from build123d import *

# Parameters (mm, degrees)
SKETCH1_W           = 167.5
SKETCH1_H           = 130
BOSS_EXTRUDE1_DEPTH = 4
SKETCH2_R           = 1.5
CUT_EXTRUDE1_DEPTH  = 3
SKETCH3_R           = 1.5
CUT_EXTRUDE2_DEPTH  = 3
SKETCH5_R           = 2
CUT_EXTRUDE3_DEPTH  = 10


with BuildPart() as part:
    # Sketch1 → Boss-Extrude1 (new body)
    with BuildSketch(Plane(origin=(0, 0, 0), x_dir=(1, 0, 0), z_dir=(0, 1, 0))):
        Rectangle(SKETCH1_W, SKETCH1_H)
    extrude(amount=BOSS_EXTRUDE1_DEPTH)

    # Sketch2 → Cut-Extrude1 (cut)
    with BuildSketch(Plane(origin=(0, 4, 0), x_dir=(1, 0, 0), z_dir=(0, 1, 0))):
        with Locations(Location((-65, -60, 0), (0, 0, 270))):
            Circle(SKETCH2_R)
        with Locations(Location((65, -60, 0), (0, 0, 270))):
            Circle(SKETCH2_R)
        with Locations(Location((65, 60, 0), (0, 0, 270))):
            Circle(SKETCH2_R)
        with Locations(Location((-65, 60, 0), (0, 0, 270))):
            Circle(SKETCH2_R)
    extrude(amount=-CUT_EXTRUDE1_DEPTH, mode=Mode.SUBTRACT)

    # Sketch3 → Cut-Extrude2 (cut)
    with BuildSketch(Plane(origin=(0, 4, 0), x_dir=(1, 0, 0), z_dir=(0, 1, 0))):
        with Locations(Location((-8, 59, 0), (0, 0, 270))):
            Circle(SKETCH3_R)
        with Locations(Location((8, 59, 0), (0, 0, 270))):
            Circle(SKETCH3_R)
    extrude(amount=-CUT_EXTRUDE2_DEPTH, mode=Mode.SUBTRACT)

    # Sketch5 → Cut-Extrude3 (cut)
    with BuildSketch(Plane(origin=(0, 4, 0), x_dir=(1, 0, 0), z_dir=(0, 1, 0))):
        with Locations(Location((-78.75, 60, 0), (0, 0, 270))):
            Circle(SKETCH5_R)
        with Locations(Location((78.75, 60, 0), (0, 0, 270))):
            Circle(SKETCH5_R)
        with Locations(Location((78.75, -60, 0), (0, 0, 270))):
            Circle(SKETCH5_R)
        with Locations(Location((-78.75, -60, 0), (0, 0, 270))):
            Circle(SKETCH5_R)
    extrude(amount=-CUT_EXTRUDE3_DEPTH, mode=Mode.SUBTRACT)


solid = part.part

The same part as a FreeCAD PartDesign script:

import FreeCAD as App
import Part
import Sketcher
from FreeCAD import Vector


def add_polygon(sketch, points):
    """Adds a closed chain of lines whose ends are joined by coincident constraints."""
    first, n = sketch.GeometryCount, len(points)
    for a, b in zip(points, points[1:] + points[:1]):
        sketch.addGeometry(Part.LineSegment(App.Vector(*a, 0), App.Vector(*b, 0)), False)
    for i in range(n):
        sketch.addConstraint(Sketcher.Constraint("Coincident", first + i, 2, first + (i + 1) % n, 1))

doc = App.newDocument("Part")
body = doc.addObject("PartDesign::Body", "Body")

sketch1 = body.newObject("Sketcher::SketchObject", "Sketch")
sketch1.AttachmentSupport = (doc.getObject("XZ_Plane"), [""])
sketch1.MapMode = "FlatFace"
add_polygon(sketch1, [(-83.75, -65), (-83.75, 65), (83.75, 65), (83.75, -65)])
sketch1.addConstraint([
    Sketcher.Constraint("Vertical", 0),
    Sketcher.Constraint("Horizontal", 1),
    Sketcher.Constraint("Vertical", 2),
    Sketcher.Constraint("Horizontal", 3),
    Sketcher.Constraint("Symmetric", 0, 2, 2, 2, -1, 1),
    Sketcher.Constraint("DistanceY", 0, 1, 0, 2, 130.0),
    Sketcher.Constraint("DistanceX", 1, 1, 1, 2, 167.5),
])
pad1 = body.newObject("PartDesign::Pad", "Pad")
pad1.Profile = sketch1
pad1.Length = 4
pad1.Reversed = True

sketch2 = body.newObject("Sketcher::SketchObject", "Sketch001")
sketch2.AttachmentSupport = (doc.getObject("XZ_Plane"), [""])
sketch2.MapMode = "FlatFace"
sketch2.AttachmentOffset = App.Placement(Vector(0, 0, -4), App.Rotation())
sketch2.addGeometry([
    Part.Circle(Vector(-65, 60, 0), Vector(0, 0, 1), 1.5),
    Part.Circle(Vector(65, 60, 0), Vector(0, 0, 1), 1.5),
    Part.Circle(Vector(65, -60, 0), Vector(0, 0, 1), 1.5),
    Part.Circle(Vector(-65, -60, 0), Vector(0, 0, 1), 1.5),
], False)
sketch2.addConstraint([
    Sketcher.Constraint("Equal", 0, 1),
    Sketcher.Constraint("Equal", 1, 2),
    Sketcher.Constraint("Equal", 2, 3),
    Sketcher.Constraint("Symmetric", 0, 3, 2, 3, -1, 1),
    Sketcher.Constraint("Symmetric", 1, 3, 3, 3, -1, 1),
    Sketcher.Constraint("Symmetric", 0, 3, 1, 3, -2),
    Sketcher.Constraint("Diameter", 0, 3.0),
    Sketcher.Constraint("DistanceX", 0, 3, -1, 1, 65.0),
    Sketcher.Constraint("DistanceY", -1, 1, 0, 3, 60.0),
])
pocket1 = body.newObject("PartDesign::Pocket", "Pocket")
pocket1.Profile = sketch2
pocket1.Length = 3
pocket1.Reversed = True

sketch3 = body.newObject("Sketcher::SketchObject", "Sketch002")
sketch3.AttachmentSupport = (doc.getObject("XZ_Plane"), [""])
sketch3.MapMode = "FlatFace"
sketch3.AttachmentOffset = App.Placement(Vector(0, 0, -4), App.Rotation())
sketch3.addGeometry([
    Part.Circle(Vector(-8, -59, 0), Vector(0, 0, 1), 1.5),
    Part.Circle(Vector(8, -59, 0), Vector(0, 0, 1), 1.5),
], False)
sketch3.addConstraint([
    Sketcher.Constraint("Equal", 0, 1),
    Sketcher.Constraint("Symmetric", 0, 3, 1, 3, -2),
    Sketcher.Constraint("Diameter", 0, 3.0),
    Sketcher.Constraint("DistanceX", 0, 3, -1, 1, 8.0),
    Sketcher.Constraint("DistanceY", 0, 3, -1, 1, 59.0),
])
pocket2 = body.newObject("PartDesign::Pocket", "Pocket001")
pocket2.Profile = sketch3
pocket2.Length = 3
pocket2.Reversed = True

sketch4 = body.newObject("Sketcher::SketchObject", "Sketch003")
sketch4.AttachmentSupport = (doc.getObject("XZ_Plane"), [""])
sketch4.MapMode = "FlatFace"
sketch4.AttachmentOffset = App.Placement(Vector(0, 0, -4), App.Rotation())
sketch4.addGeometry([
    Part.Circle(Vector(-78.75, -60, 0), Vector(0, 0, 1), 2),
    Part.Circle(Vector(78.75, -60, 0), Vector(0, 0, 1), 2),
    Part.Circle(Vector(78.75, 60, 0), Vector(0, 0, 1), 2),
    Part.Circle(Vector(-78.75, 60, 0), Vector(0, 0, 1), 2),
], False)
sketch4.addConstraint([
    Sketcher.Constraint("Equal", 0, 1),
    Sketcher.Constraint("Equal", 1, 2),
    Sketcher.Constraint("Equal", 2, 3),
    Sketcher.Constraint("Symmetric", 0, 3, 2, 3, -1, 1),
    Sketcher.Constraint("Symmetric", 1, 3, 3, 3, -1, 1),
    Sketcher.Constraint("Symmetric", 0, 3, 1, 3, -2),
    Sketcher.Constraint("Diameter", 0, 4.0),
    Sketcher.Constraint("DistanceY", 0, 3, -1, 1, 60.0),
    Sketcher.Constraint("DistanceX", 0, 3, 1, 3, 157.5),
])
pocket3 = body.newObject("PartDesign::Pocket", "Pocket002")
pocket3.Profile = sketch4
pocket3.Length = 10
pocket3.Reversed = True

doc.recompute()
